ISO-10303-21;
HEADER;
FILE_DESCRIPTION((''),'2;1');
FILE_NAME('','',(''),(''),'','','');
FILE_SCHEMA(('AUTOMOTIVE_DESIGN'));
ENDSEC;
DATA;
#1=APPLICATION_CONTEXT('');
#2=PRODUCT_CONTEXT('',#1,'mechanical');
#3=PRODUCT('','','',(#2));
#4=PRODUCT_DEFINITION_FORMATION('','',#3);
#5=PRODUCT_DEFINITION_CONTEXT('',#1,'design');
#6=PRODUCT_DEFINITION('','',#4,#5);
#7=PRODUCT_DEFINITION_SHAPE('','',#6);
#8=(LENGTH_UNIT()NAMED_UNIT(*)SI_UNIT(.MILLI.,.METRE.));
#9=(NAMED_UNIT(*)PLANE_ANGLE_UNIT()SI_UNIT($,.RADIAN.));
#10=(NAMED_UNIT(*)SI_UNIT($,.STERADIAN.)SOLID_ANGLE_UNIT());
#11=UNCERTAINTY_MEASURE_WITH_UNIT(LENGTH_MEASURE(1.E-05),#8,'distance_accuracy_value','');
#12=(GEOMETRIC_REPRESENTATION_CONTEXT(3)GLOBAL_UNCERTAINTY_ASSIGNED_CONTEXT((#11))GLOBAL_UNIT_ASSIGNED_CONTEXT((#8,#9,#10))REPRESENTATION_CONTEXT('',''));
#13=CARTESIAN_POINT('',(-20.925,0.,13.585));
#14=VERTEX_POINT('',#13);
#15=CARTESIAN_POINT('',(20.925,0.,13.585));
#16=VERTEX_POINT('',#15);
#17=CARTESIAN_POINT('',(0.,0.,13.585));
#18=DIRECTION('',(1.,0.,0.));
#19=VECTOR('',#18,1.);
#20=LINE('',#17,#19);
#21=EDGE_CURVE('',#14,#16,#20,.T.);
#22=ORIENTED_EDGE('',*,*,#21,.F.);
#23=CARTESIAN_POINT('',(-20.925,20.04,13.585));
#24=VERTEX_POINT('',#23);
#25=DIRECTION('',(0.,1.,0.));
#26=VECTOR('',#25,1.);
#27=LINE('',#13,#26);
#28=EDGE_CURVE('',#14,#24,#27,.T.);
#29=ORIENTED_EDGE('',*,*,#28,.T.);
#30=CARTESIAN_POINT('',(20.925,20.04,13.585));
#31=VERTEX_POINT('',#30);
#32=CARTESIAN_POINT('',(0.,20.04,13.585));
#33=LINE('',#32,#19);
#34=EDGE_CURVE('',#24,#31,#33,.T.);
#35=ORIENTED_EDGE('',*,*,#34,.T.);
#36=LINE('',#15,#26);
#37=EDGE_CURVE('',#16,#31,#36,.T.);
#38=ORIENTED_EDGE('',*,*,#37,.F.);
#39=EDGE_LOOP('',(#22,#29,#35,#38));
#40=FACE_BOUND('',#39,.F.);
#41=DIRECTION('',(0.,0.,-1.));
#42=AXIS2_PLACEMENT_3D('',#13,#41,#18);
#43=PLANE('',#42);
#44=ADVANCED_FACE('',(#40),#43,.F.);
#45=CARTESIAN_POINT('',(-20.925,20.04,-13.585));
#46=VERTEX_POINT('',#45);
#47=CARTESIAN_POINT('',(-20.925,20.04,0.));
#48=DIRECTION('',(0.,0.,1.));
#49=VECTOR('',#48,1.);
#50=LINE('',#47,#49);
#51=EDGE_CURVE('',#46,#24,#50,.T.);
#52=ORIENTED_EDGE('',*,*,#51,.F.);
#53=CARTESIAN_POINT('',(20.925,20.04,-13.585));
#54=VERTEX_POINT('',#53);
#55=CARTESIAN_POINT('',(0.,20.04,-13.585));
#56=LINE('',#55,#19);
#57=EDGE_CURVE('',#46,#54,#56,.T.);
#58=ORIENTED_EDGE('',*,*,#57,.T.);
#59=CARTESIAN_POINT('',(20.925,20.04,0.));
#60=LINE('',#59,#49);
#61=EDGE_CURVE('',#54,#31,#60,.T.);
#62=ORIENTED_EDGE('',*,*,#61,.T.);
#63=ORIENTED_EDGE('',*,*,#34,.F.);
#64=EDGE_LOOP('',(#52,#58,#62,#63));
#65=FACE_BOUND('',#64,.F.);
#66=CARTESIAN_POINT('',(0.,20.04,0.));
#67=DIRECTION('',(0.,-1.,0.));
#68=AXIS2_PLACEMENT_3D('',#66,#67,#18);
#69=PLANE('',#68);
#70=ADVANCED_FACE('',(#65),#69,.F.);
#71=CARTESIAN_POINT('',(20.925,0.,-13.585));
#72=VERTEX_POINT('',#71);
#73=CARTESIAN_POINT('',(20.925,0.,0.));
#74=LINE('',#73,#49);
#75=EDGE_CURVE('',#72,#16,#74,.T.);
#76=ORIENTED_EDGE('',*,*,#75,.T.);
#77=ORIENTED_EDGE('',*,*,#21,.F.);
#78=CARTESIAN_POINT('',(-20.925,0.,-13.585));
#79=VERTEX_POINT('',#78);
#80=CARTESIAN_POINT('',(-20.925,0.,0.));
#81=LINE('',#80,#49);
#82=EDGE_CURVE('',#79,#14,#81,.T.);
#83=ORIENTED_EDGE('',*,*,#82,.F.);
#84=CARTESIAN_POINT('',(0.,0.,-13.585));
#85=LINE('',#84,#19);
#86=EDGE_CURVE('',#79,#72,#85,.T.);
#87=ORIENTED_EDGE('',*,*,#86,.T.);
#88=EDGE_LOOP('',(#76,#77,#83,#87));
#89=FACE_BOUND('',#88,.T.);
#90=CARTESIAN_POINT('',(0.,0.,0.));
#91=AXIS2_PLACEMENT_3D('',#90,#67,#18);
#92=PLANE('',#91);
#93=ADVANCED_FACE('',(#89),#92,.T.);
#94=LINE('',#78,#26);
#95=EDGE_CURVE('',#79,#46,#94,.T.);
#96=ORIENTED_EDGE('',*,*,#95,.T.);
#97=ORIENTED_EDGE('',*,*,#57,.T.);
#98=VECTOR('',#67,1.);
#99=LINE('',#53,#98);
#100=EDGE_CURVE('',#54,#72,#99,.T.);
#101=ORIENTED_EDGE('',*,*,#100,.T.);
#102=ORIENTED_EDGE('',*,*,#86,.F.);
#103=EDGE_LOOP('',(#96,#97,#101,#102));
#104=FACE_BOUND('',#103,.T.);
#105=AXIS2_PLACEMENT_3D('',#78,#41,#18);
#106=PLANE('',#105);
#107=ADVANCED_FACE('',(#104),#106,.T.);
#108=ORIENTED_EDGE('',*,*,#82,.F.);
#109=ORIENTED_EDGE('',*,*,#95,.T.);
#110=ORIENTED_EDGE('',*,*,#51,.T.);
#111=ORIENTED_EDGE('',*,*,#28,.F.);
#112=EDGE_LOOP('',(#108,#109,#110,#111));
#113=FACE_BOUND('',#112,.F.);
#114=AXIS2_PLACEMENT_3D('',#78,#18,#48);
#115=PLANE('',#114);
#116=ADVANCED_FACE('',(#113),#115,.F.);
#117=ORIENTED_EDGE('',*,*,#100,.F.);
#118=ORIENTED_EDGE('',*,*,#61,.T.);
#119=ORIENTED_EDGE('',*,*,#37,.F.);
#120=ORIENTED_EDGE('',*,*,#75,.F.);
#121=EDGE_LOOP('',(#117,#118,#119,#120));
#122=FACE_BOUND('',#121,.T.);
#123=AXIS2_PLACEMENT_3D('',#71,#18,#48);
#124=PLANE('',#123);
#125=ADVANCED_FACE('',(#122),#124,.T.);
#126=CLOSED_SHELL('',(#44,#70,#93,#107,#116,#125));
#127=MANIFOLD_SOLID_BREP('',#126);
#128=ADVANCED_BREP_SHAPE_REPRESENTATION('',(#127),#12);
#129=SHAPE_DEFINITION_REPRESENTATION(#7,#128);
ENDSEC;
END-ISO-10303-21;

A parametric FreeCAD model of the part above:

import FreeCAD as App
import Part
import Sketcher

V = App.Vector


def add_polygon(sketch, points):
    """Adds a closed chain of lines whose ends are joined by coincident constraints."""
    first, n = sketch.GeometryCount, len(points)
    for a, b in zip(points, points[1:] + points[:1]):
        sketch.addGeometry(Part.LineSegment(App.Vector(*a, 0), App.Vector(*b, 0)), False)
    for i in range(n):
        sketch.addConstraint(Sketcher.Constraint("Coincident", first + i, 2, first + (i + 1) % n, 1))

doc = App.newDocument("Part")
body = doc.addObject("PartDesign::Body", "Body")

# Sketch on XZ plane
sketch1 = doc.addObject("Sketcher::SketchObject", "Sketch")
body.addObject(sketch1)
sketch1.AttachmentSupport = (doc.XZ_Plane, [""])
sketch1.MapMode = "FlatFace"
add_polygon(sketch1, [(-21, 14), (-21, -14), (21, -14), (21, 14)])  # lines 0-3
sketch1.addConstraint([
    Sketcher.Constraint("Vertical", 0),
    Sketcher.Constraint("Horizontal", 1),
    Sketcher.Constraint("Vertical", 2),
    Sketcher.Constraint("Horizontal", 3),
    Sketcher.Constraint("Symmetric", 0, 2, 2, 2, -1, 1),
    Sketcher.Constraint("DistanceX", 1, 1, 1, 2, 41.85),
    Sketcher.Constraint("DistanceY", 0, 2, 0, 1, 27.17),
])
pad1 = doc.addObject("PartDesign::Pad", "Pad")
body.addObject(pad1)
pad1.Profile = sketch1
pad1.Length = 20.04
pad1.Reversed = True

# Sketch on YZ plane
sketch2 = doc.addObject("Sketcher::SketchObject", "Sketch001")
body.addObject(sketch2)
sketch2.AttachmentSupport = (doc.YZ_Plane, [""])
sketch2.MapMode = "FlatFace"
sketch2.AttachmentOffset = App.Placement(V(0, 0, 20.925), App.Rotation())
add_polygon(sketch2, [(7, -1), (7, -14), (13, -14), (13, -1)])  # lines 0-3
sketch2.addConstraint([
    Sketcher.Constraint("Vertical", 0),
    Sketcher.Constraint("Horizontal", 1),
    Sketcher.Constraint("Vertical", 2),
    Sketcher.Constraint("Horizontal", 3),
    Sketcher.Constraint("DistanceX", 1, 1, 1, 2, 5.94),
    Sketcher.Constraint("DistanceY", 0, 2, 0, 1, 12.76),
    Sketcher.Constraint("DistanceY", 0, 2, -1, 1, 13.585),
    Sketcher.Constraint("DistanceX", -1, 1, 0, 2, 7.203328),
])
pad2 = doc.addObject("PartDesign::Pad", "Pad001")
body.addObject(pad2)
pad2.Profile = sketch2
pad2.Length = 11.92
pad2.Reversed = True

doc.recompute()
